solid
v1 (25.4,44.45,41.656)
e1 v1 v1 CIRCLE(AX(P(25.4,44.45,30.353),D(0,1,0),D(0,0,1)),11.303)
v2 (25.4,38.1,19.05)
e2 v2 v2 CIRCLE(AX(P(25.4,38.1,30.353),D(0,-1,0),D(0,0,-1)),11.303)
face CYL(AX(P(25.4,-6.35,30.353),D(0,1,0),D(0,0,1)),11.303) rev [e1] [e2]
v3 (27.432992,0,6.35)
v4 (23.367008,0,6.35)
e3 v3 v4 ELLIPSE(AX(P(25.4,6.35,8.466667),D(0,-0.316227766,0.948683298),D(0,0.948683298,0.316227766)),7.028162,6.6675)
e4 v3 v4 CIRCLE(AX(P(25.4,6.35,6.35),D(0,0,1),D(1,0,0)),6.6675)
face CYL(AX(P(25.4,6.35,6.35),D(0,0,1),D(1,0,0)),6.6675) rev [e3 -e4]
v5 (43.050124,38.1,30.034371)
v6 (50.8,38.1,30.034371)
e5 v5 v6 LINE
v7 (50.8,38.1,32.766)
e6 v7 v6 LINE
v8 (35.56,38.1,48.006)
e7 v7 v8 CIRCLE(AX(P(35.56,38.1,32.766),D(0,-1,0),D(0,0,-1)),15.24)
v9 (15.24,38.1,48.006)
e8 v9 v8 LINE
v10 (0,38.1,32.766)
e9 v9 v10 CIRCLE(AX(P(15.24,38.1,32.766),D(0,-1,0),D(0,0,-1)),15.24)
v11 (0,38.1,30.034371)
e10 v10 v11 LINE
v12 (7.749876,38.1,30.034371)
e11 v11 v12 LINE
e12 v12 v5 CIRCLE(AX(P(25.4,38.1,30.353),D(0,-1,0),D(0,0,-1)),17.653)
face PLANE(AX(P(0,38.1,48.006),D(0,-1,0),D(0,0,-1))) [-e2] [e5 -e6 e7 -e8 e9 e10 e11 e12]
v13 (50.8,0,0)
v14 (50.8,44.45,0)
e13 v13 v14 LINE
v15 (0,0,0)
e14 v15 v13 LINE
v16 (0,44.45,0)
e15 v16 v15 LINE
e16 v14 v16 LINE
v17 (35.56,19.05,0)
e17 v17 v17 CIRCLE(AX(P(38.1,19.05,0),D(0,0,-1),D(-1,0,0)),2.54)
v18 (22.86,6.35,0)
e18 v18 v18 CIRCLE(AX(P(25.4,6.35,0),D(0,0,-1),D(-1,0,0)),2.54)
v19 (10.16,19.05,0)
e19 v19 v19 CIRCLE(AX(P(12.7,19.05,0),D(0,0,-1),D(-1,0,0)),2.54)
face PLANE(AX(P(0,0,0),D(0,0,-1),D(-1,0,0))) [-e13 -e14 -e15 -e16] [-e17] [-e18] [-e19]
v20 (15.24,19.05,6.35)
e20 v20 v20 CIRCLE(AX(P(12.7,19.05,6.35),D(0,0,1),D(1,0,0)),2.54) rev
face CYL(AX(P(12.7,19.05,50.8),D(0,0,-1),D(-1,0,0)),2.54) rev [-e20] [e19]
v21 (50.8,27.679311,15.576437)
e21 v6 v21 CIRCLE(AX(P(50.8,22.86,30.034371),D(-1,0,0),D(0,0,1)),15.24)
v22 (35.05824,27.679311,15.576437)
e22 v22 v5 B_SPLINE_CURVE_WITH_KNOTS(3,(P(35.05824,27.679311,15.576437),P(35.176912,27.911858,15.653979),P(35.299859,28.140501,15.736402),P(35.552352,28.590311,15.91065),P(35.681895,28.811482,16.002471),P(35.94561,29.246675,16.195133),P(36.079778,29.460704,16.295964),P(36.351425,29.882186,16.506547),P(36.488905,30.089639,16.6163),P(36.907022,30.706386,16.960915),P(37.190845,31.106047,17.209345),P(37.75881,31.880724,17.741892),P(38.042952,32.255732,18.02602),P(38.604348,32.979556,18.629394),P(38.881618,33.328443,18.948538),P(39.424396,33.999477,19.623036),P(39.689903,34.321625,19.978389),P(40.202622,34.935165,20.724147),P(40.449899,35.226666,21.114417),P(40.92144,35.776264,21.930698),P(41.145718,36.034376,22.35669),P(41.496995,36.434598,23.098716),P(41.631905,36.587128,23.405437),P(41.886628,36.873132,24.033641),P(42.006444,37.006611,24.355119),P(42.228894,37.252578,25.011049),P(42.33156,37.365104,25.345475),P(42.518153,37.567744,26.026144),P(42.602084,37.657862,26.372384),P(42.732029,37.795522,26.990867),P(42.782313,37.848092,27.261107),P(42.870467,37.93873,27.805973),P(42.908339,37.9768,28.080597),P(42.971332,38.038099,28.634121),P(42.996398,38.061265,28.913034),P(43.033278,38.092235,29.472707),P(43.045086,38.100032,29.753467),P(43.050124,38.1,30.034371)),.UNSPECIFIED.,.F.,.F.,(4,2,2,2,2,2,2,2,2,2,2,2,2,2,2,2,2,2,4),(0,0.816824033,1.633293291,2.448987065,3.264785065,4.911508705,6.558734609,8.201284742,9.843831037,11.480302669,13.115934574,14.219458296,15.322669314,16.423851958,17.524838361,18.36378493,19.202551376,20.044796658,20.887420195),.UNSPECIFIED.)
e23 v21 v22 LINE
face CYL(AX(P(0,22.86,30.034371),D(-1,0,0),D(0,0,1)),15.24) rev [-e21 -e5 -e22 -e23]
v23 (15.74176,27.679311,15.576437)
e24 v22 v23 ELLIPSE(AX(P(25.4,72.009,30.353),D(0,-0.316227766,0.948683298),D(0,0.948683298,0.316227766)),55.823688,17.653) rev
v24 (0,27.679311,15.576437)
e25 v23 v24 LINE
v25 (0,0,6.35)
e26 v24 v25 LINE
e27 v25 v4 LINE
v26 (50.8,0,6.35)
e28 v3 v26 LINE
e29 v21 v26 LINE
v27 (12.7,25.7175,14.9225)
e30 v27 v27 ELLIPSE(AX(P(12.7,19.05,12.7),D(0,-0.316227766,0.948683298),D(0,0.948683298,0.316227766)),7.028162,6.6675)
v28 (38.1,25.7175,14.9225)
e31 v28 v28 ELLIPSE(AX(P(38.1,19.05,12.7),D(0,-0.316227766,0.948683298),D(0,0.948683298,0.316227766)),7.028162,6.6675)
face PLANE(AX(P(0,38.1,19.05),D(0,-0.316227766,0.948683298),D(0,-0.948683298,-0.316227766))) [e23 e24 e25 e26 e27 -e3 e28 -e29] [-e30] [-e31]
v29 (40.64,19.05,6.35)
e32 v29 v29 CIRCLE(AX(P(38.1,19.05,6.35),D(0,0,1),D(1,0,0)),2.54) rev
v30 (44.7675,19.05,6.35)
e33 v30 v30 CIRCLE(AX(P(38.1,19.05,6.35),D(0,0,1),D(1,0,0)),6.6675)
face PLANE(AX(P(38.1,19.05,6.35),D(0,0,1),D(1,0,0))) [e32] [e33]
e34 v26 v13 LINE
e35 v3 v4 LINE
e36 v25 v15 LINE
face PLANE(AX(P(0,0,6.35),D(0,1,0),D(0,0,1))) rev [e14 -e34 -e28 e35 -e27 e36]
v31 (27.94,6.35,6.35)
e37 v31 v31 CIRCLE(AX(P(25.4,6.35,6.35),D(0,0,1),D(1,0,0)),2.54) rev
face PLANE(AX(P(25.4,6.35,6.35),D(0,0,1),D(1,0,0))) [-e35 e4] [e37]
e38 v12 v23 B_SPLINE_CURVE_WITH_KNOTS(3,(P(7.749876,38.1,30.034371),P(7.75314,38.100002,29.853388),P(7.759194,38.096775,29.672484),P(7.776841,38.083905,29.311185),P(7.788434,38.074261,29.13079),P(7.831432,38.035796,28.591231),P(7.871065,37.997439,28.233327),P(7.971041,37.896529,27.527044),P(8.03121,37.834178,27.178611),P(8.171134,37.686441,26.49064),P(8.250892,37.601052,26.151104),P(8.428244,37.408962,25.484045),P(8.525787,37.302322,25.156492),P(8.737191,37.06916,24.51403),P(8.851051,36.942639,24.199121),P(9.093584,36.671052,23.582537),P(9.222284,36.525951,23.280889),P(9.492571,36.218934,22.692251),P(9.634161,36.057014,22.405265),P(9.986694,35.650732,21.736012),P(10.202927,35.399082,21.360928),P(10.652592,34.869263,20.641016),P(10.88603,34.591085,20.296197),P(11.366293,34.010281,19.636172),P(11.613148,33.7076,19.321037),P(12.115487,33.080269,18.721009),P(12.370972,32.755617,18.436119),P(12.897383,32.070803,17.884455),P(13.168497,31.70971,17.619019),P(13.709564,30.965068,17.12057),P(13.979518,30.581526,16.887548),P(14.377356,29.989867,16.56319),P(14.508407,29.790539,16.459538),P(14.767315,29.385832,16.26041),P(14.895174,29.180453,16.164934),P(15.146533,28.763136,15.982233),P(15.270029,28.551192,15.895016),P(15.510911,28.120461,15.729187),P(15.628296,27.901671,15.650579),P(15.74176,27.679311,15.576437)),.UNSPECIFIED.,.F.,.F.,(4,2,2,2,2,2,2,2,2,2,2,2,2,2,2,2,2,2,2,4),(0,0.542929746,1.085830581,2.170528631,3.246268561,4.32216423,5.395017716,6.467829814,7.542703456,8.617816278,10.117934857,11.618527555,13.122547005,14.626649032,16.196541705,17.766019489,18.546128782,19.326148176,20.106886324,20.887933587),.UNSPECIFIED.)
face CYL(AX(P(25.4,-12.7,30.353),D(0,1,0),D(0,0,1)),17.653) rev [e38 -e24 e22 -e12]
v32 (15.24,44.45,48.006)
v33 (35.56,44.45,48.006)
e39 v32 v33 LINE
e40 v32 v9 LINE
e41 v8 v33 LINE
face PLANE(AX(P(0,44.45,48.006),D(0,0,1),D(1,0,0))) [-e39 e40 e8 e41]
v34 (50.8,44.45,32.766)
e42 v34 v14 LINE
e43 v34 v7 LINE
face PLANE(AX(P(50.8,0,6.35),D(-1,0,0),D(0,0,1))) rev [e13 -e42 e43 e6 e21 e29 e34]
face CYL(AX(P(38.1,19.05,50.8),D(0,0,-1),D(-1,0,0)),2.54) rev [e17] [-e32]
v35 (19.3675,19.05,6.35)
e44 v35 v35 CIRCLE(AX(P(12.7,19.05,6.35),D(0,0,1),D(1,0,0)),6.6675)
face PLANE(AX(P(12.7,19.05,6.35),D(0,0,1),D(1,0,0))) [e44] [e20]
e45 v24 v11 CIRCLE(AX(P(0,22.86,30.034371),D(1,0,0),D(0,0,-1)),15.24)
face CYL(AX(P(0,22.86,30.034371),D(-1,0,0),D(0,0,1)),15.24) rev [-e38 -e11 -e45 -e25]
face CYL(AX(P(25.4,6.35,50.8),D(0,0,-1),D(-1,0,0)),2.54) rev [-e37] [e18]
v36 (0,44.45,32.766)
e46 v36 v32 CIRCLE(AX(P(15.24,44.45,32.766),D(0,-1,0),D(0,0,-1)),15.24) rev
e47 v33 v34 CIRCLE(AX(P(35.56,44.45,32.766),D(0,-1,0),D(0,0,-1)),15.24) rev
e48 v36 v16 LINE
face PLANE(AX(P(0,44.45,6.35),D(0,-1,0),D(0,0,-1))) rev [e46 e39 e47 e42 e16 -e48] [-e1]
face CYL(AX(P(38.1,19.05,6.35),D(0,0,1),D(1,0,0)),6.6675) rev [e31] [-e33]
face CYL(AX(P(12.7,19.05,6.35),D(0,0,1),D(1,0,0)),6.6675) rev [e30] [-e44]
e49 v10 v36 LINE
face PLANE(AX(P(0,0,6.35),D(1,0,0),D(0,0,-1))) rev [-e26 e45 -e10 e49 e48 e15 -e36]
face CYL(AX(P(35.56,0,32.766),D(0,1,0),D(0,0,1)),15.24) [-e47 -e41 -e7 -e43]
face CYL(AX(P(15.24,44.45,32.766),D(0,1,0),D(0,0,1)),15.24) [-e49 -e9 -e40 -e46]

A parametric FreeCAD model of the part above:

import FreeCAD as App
import Part
import Sketcher
from FreeCAD import Vector
Q = App.Units.Quantity


def edges_at(feature, points):
    """Names of the edges that pass closest to the given points."""
    edges = feature.Shape.Edges
    near = lambda p: min(range(len(edges)), key=lambda i: edges[i].distToShape(Part.Vertex(*p))[0])
    return sorted({f"Edge{near(p) + 1}" for p in points})

doc = App.newDocument("Part")
params = doc.addObject("Spreadsheet::Sheet", "Params")
for row, (alias, value) in enumerate([
    ("sketch1_width", "2 in"),
    ("sketch1_height", "1.75 in"),
    ("pad1_length", "0.25 in"),
    ("sketch2_width", "1.75 in"),
    ("sketch2_width2", "0.25 in"),
    ("sketch2_height", "1.64 in"),
    ("sketch2_height2", "1.14 in"),
    ("pad2_length", "2 in"),
    ("sketch3_diameter", "0.89 in"),
    ("pocket1_length", "2 in"),
    ("sketch4_diameter", "0.2 in"),
    ("pocket2_length", "2 in"),
    ("sketch5_diameter", "0.525 in"),
    ("pocket3_length", "1.64 in"),
    ("sketch6_diameter", "1.39 in"),
    ("pocket4_length", "2 in"),
    ("fillet_radius", "0.6 in"),
], start=1):
    params.set(f"A{row}", alias)
    params.set(f"B{row}", "=" + value)
    params.setAlias(f"B{row}", alias)

body = doc.addObject("PartDesign::Body", "Body")

# Sketch on XY plane
sketch1 = body.newObject("Sketcher::SketchObject", "Sketch")
sketch1.AttachmentSupport = (doc.getObject("XY_Plane"), [""])
sketch1.MapMode = "FlatFace"
sketch1.addGeometry(Part.LineSegment(Vector(0, 44, 0), Vector(0, 0, 0)), False)
sketch1.addGeometry(Part.LineSegment(Vector(0, 0, 0), Vector(51, 0, 0)), False)
sketch1.addGeometry(Part.LineSegment(Vector(51, 0, 0), Vector(51, 44, 0)), False)
sketch1.addGeometry(Part.LineSegment(Vector(51, 44, 0), Vector(0, 44, 0)), False)
sketch1.addConstraint(Sketcher.Constraint("Coincident", 0, 2, 1, 1))
sketch1.addConstraint(Sketcher.Constraint("Coincident", 1, 2, 2, 1))
sketch1.addConstraint(Sketcher.Constraint("Coincident", 2, 2, 3, 1))
sketch1.addConstraint(Sketcher.Constraint("Coincident", 3, 2, 0, 1))
sketch1.addConstraint(Sketcher.Constraint("Vertical", 0))
sketch1.addConstraint(Sketcher.Constraint("Horizontal", 1))
sketch1.addConstraint(Sketcher.Constraint("Vertical", 2))
sketch1.addConstraint(Sketcher.Constraint("Horizontal", 3))
sketch1.addConstraint(Sketcher.Constraint("Coincident", 0, 2, -1, 1))
sketch1.addConstraint(Sketcher.Constraint("DistanceX", 1, 1, 1, 2, Q("2 in")))
sketch1.addConstraint(Sketcher.Constraint("DistanceY", 0, 2, 0, 1, Q("1.75 in")))
sketch1.setExpression("Constraints[9]", "Params.sketch1_width")
sketch1.setExpression("Constraints[10]", "Params.sketch1_height")
pad1 = body.newObject("PartDesign::Pad", "Pad")
pad1.Profile = sketch1
pad1.setExpression("Length", "Params.pad1_length")

# Sketch on YZ plane
sketch2 = body.newObject("Sketcher::SketchObject", "Sketch001")
sketch2.AttachmentSupport = (doc.getObject("YZ_Plane"), [""])
sketch2.MapMode = "FlatFace"
sketch2.AttachmentOffset = App.Placement(Vector(0, 0, 2 * 25.4), App.Rotation())
sketch2.addGeometry(Part.LineSegment(Vector(0, 6, 0), Vector(44, 6, 0)), False)
sketch2.addGeometry(Part.LineSegment(Vector(44, 6, 0), Vector(44, 48, 0)), False)
sketch2.addGeometry(Part.LineSegment(Vector(44, 48, 0), Vector(38, 48, 0)), False)
sketch2.addGeometry(Part.LineSegment(Vector(38, 48, 0), Vector(38, 19, 0)), False)
sketch2.addGeometry(Part.LineSegment(Vector(38, 19, 0), Vector(0, 6, 0)), False)
sketch2.addConstraint(Sketcher.Constraint("Coincident", 0, 2, 1, 1))
sketch2.addConstraint(Sketcher.Constraint("Coincident", 1, 2, 2, 1))
sketch2.addConstraint(Sketcher.Constraint("Coincident", 2, 2, 3, 1))
sketch2.addConstraint(Sketcher.Constraint("Coincident", 3, 2, 4, 1))
sketch2.addConstraint(Sketcher.Constraint("Coincident", 4, 2, 0, 1))
sketch2.addConstraint(Sketcher.Constraint("Horizontal", 0))
sketch2.addConstraint(Sketcher.Constraint("Vertical", 1))
sketch2.addConstraint(Sketcher.Constraint("Horizontal", 2))
sketch2.addConstraint(Sketcher.Constraint("Vertical", 3))
sketch2.addConstraint(Sketcher.Constraint("PointOnObject", 4, 2, -2))
sketch2.addConstraint(Sketcher.Constraint("DistanceX", 0, 1, 0, 2, Q("1.75 in")))
sketch2.addConstraint(Sketcher.Constraint("DistanceX", 2, 2, 2, 1, Q("0.25 in")))
sketch2.addConstraint(Sketcher.Constraint("DistanceY", 1, 1, 1, 2, Q("1.64 in")))
sketch2.addConstraint(Sketcher.Constraint("DistanceY", 3, 2, 3, 1, Q("1.14 in")))
sketch2.addConstraint(Sketcher.Constraint("DistanceY", -1, 1, 0, 2, Q("0.25 in")))
sketch2.setExpression("Constraints[10]", "Params.sketch2_width")
sketch2.setExpression("Constraints[11]", "Params.sketch2_width2")
sketch2.setExpression("Constraints[12]", "Params.sketch2_height")
sketch2.setExpression("Constraints[13]", "Params.sketch2_height2")
pad2 = body.newObject("PartDesign::Pad", "Pad001")
pad2.Profile = sketch2
pad2.setExpression("Length", "Params.pad2_length")
pad2.Reversed = True

# Sketch on XZ plane
sketch3 = body.newObject("Sketcher::SketchObject", "Sketch002")
sketch3.AttachmentSupport = (doc.getObject("XZ_Plane"), [""])
sketch3.MapMode = "FlatFace"
sketch3.AttachmentOffset = App.Placement(Vector(0, 0, -1.75 * 25.4), App.Rotation())
sketch3.addGeometry(Part.Circle(Vector(25, 30, 0), Vector(0, 0, 1), 11), False)
sketch3.addConstraint(Sketcher.Constraint("Diameter", 0, Q("0.89 in")))
sketch3.addConstraint(Sketcher.Constraint("DistanceX", -1, 1, 0, 3, Q("1 in")))
sketch3.addConstraint(Sketcher.Constraint("DistanceY", -1, 1, 0, 3, Q("1.195 in")))
sketch3.setExpression("Constraints[0]", "Params.sketch3_diameter")
pocket1 = body.newObject("PartDesign::Pocket", "Pocket")
pocket1.Profile = sketch3
pocket1.setExpression("Length", "Params.pocket1_length")
pocket1.Reversed = True

# Sketch on XY plane
sketch4 = body.newObject("Sketcher::SketchObject", "Sketch003")
sketch4.AttachmentSupport = (doc.getObject("XY_Plane"), [""])
sketch4.MapMode = "FlatFace"
sketch4.addGeometry(Part.Circle(Vector(25.4, 6.3, 0), Vector(0, 0, 1), 2.5), False)
sketch4.addGeometry(Part.Circle(Vector(38.1, 19.1, 0), Vector(0, 0, 1), 2.5), False)
sketch4.addGeometry(Part.Circle(Vector(12.7, 19.1, 0), Vector(0, 0, 1), 2.5), False)
sketch4.addConstraint(Sketcher.Constraint("Equal", 0, 1))
sketch4.addConstraint(Sketcher.Constraint("Equal", 1, 2))
sketch4.addConstraint(Sketcher.Constraint("Horizontal", 1, 3, 2, 3))
sketch4.addConstraint(Sketcher.Constraint("Diameter", 0, Q("0.2 in")))
sketch4.addConstraint(Sketcher.Constraint("DistanceX", -1, 1, 0, 3, Q("1 in")))
sketch4.addConstraint(Sketcher.Constraint("DistanceX", 2, 3, 1, 3, Q("1 in")))
sketch4.addConstraint(Sketcher.Constraint("DistanceX", -1, 1, 1, 3, Q("1.5 in")))
sketch4.addConstraint(Sketcher.Constraint("DistanceY", 0, 3, 1, 3, Q("0.5 in")))
sketch4.addConstraint(Sketcher.Constraint("DistanceY", -1, 1, 0, 3, Q("0.25 in")))
sketch4.setExpression("Constraints[3]", "Params.sketch4_diameter")
pocket2 = body.newObject("PartDesign::Pocket", "Pocket001")
pocket2.Profile = sketch4
pocket2.setExpression("Length", "Params.pocket2_length")
pocket2.Reversed = True

# Sketch on XY plane
sketch5 = body.newObject("Sketcher::SketchObject", "Sketch004")
sketch5.AttachmentSupport = (doc.getObject("XY_Plane"), [""])
sketch5.MapMode = "FlatFace"
sketch5.AttachmentOffset = App.Placement(Vector(0, 0, 1.89 * 25.4), App.Rotation())
sketch5.addGeometry(Part.Circle(Vector(13, 19, 0), Vector(0, 0, 1), 7), False)
sketch5.addGeometry(Part.Circle(Vector(38, 19, 0), Vector(0, 0, 1), 7), False)
sketch5.addGeometry(Part.Circle(Vector(25, 6, 0), Vector(0, 0, 1), 7), False)
sketch5.addConstraint(Sketcher.Constraint("Equal", 0, 1))
sketch5.addConstraint(Sketcher.Constraint("Equal", 1, 2))
sketch5.addConstraint(Sketcher.Constraint("Horizontal", 0, 3, 1, 3))
sketch5.addConstraint(Sketcher.Constraint("Diameter", 0, Q("0.525 in")))
sketch5.addConstraint(Sketcher.Constraint("DistanceX", -1, 1, 2, 3, Q("1 in")))
sketch5.addConstraint(Sketcher.Constraint("DistanceX", 0, 3, 1, 3, Q("1 in")))
sketch5.addConstraint(Sketcher.Constraint("DistanceX", -1, 1, 0, 3, Q("0.5 in")))
sketch5.addConstraint(Sketcher.Constraint("DistanceY", 2, 3, 0, 3, Q("0.5 in")))
sketch5.addConstraint(Sketcher.Constraint("DistanceY", -1, 1, 0, 3, Q("0.75 in")))
sketch5.setExpression("Constraints[3]", "Params.sketch5_diameter")
pocket3 = body.newObject("PartDesign::Pocket", "Pocket002")
pocket3.Profile = sketch5
pocket3.setExpression("Length", "Params.pocket3_length")

# Sketch on XZ plane
sketch6 = body.newObject("Sketcher::SketchObject", "Sketch005")
sketch6.AttachmentSupport = (doc.getObject("XZ_Plane"), [""])
sketch6.MapMode = "FlatFace"
sketch6.AttachmentOffset = App.Placement(Vector(0, 0, -1.5 * 25.4), App.Rotation())
sketch6.addGeometry(Part.Circle(Vector(25, 30, 0), Vector(0, 0, 1), 18), False)
sketch6.addConstraint(Sketcher.Constraint("Diameter", 0, Q("1.39 in")))
sketch6.addConstraint(Sketcher.Constraint("DistanceX", -1, 1, 0, 3, Q("1 in")))
sketch6.addConstraint(Sketcher.Constraint("DistanceY", -1, 1, 0, 3, Q("1.195 in")))
sketch6.setExpression("Constraints[0]", "Params.sketch6_diameter")
pocket4 = body.newObject("PartDesign::Pocket", "Pocket003")
pocket4.Profile = sketch6
pocket4.setExpression("Length", "Params.pocket4_length")
pocket4.Reversed = True
doc.recompute()

fillet = body.newObject("PartDesign::Fillet", "Fillet")
fillet.Base = (pocket4, edges_at(pocket4, [
    (5.92, 38.1, 19.05),
    (44.88, 38.1, 19.05),
    (50.8, 41.275, 48.006),
    (0, 41.275, 48.006),
]))
fillet.setExpression("Radius", "Params.fillet_radius")

doc.recompute()
